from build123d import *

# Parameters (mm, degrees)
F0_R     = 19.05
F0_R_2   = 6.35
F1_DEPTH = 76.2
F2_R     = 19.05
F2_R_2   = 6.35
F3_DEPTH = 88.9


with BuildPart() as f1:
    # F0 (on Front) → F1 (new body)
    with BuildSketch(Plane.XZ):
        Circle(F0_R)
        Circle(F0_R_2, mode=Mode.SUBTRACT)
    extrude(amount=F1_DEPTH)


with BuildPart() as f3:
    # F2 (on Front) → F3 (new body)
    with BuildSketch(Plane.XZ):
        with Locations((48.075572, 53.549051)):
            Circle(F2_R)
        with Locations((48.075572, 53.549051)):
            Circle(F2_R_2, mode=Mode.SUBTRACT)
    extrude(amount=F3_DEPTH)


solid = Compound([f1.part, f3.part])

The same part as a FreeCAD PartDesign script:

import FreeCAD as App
import Part
import Sketcher

V = App.Vector
Q = App.Units.Quantity

doc = App.newDocument("Part")
body = doc.addObject("PartDesign::Body", "Body")

sketch1 = doc.addObject("Sketcher::SketchObject", "Sketch")
body.addObject(sketch1)
sketch1.AttachmentSupport = (doc.XZ_Plane, [""])
sketch1.MapMode = "FlatFace"
sketch1.addGeometry(Part.Circle(V(0, 0, 0), V(0, 0, 1), 19), False)
sketch1.addGeometry(Part.Circle(V(0, 0, 0), V(0, 0, 1), 6), False)
sketch1.addConstraint(Sketcher.Constraint("Coincident", 0, 3, -1, 1))
sketch1.addConstraint(Sketcher.Constraint("Coincident", 1, 3, -1, 1))
sketch1.addConstraint(Sketcher.Constraint("Diameter", 0, Q("1.5 in")))
sketch1.addConstraint(Sketcher.Constraint("Diameter", 1, Q("0.5 in")))
pad1 = doc.addObject("PartDesign::Pad", "Pad")
body.addObject(pad1)
pad1.Profile = sketch1
pad1.Length = Q("3 in")
body2 = doc.addObject("PartDesign::Body", "Body001")

sketch2 = doc.addObject("Sketcher::SketchObject", "Sketch001")
body2.addObject(sketch2)
sketch2.AttachmentSupport = (doc.getObject("XZ_Plane001"), [""])
sketch2.MapMode = "FlatFace"
sketch2.addGeometry(Part.Circle(V(48, 54, 0), V(0, 0, 1), 19), False)
sketch2.addGeometry(Part.Circle(V(48, 54, 0), V(0, 0, 1), 6), False)
sketch2.addConstraint(Sketcher.Constraint("Coincident", 1, 3, 0, 3))
sketch2.addConstraint(Sketcher.Constraint("Diameter", 0, Q("1.5 in")))
sketch2.addConstraint(Sketcher.Constraint("Diameter", 1, Q("0.5 in")))
sketch2.addConstraint(Sketcher.Constraint("DistanceY", -1, 1, 0, 3, Q("53.549051 mm")))
sketch2.addConstraint(Sketcher.Constraint("DistanceX", -1, 1, 0, 3, Q("48.075572 mm")))
pad2 = doc.addObject("PartDesign::Pad", "Pad001")
body2.addObject(pad2)
pad2.Profile = sketch2
pad2.Length = Q("3.5 in")

doc.recompute()
